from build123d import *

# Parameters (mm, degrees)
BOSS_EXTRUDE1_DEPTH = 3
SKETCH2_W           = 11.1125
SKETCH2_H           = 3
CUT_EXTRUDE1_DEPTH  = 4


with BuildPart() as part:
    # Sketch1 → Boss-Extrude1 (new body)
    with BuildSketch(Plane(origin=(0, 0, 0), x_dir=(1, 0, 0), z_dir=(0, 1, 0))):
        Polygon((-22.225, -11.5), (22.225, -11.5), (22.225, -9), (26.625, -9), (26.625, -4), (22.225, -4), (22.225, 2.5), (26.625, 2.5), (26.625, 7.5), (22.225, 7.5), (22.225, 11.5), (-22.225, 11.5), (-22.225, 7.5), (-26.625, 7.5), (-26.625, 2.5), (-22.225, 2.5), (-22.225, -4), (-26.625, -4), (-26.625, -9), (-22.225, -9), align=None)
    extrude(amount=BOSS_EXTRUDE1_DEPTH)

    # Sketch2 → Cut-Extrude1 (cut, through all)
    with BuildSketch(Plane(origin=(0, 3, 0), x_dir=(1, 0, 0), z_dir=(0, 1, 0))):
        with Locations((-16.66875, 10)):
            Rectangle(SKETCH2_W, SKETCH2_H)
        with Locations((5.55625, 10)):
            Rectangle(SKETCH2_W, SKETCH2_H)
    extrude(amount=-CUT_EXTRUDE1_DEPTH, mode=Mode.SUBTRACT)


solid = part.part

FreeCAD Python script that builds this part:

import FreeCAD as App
import Part
import Sketcher


def add_polygon(sketch, points):
    """Adds a closed chain of lines whose ends are joined by coincident constraints."""
    first, n = sketch.GeometryCount, len(points)
    for a, b in zip(points, points[1:] + points[:1]):
        sketch.addGeometry(Part.LineSegment(App.Vector(*a, 0), App.Vector(*b, 0)), False)
    for i in range(n):
        sketch.addConstraint(Sketcher.Constraint("Coincident", first + i, 2, first + (i + 1) % n, 1))

doc = App.newDocument("Part")
body = doc.addObject("PartDesign::Body", "Body")

sketch1 = body.newObject("Sketcher::SketchObject", "Sketch")
sketch1.AttachmentSupport = (doc.getObject("XZ_Plane"), [""])
sketch1.MapMode = "FlatFace"
add_polygon(sketch1, [(-22.2, 11.5), (22.2, 11.5), (22.2, 9), (26.6, 9), (26.6, 4), (22.2, 4), (22.2, -2.5), (26.6, -2.5), (26.6, -7.5), (22.2, -7.5), (22.2, -11.5), (-22.2, -11.5), (-22.2, -7.5), (-26.6, -7.5), (-26.6, -2.5), (-22.2, -2.5), (-22.2, 4), (-26.6, 4), (-26.6, 9), (-22.2, 9)])
sketch1.addConstraint([
    Sketcher.Constraint("Horizontal", 0),
    Sketcher.Constraint("Vertical", 1),
    Sketcher.Constraint("Horizontal", 2),
    Sketcher.Constraint("Vertical", 3),
    Sketcher.Constraint("Horizontal", 4),
    Sketcher.Constraint("Vertical", 5),
    Sketcher.Constraint("Horizontal", 6),
    Sketcher.Constraint("Vertical", 7),
    Sketcher.Constraint("Horizontal", 8),
    Sketcher.Constraint("Vertical", 9),
    Sketcher.Constraint("Horizontal", 10),
    Sketcher.Constraint("Vertical", 11),
    Sketcher.Constraint("Horizontal", 12),
    Sketcher.Constraint("Vertical", 13),
    Sketcher.Constraint("Horizontal", 14),
    Sketcher.Constraint("Vertical", 15),
    Sketcher.Constraint("Horizontal", 16),
    Sketcher.Constraint("Vertical", 17),
    Sketcher.Constraint("Horizontal", 18),
    Sketcher.Constraint("Vertical", 19),
    Sketcher.Constraint("Symmetric", 0, 2, 10, 2, -1, 1),
    Sketcher.Constraint("Symmetric", 8, 2, 11, 2, -2),
    Sketcher.Constraint("Symmetric", 6, 2, 13, 2, -2),
    Sketcher.Constraint("Symmetric", 4, 2, 15, 2, -2),
    Sketcher.Constraint("Symmetric", 2, 2, 17, 2, -2),
    Sketcher.Constraint("Vertical", 1, 2, 4, 2),
    Sketcher.Constraint("Vertical", 3, 2, 6, 2),
    Sketcher.Constraint("Vertical", 15, 2, 18, 2),
    Sketcher.Constraint("Equal", 3, 7),
    Sketcher.Constraint("DistanceY", 3, 2, 3, 1, 5.0),
    Sketcher.Constraint("DistanceY", 9, 2, 9, 1, 4.0),
    Sketcher.Constraint("DistanceX", 2, 1, 2, 2, 4.4),
    Sketcher.Constraint("DistanceY", 1, 2, 1, 1, 2.5),
    Sketcher.Constraint("DistanceY", 5, 2, 5, 1, 6.5),
    Sketcher.Constraint("DistanceX", 0, 1, 0, 2, 44.45),
])
pad1 = body.newObject("PartDesign::Pad", "Pad")
pad1.Profile = sketch1
pad1.Length = 3
pad1.Reversed = True

sketch2 = body.newObject("Sketcher::SketchObject", "Sketch001")
sketch2.AttachmentSupport = (doc.getObject("XZ_Plane"), [""])
sketch2.MapMode = "FlatFace"
sketch2.AttachmentOffset = App.Placement(App.Vector(0, 0, -3), App.Rotation())
add_polygon(sketch2, [(-22.2, -11.5), (-22.2, -8.5), (-11.1, -8.5), (-11.1, -11.5)])
add_polygon(sketch2, [(0, -11.5), (0, -8.5), (11.1, -8.5), (11.1, -11.5)])
sketch2.addConstraint([
    Sketcher.Constraint("Vertical", 0),
    Sketcher.Constraint("Horizontal", 1),
    Sketcher.Constraint("Vertical", 2),
    Sketcher.Constraint("Horizontal", 3),
    Sketcher.Constraint("Vertical", 4),
    Sketcher.Constraint("Horizontal", 5),
    Sketcher.Constraint("Vertical", 6),
    Sketcher.Constraint("Horizontal", 7),
    Sketcher.Constraint("Symmetric", 1, 2, 5, 2, -2),
    Sketcher.Constraint("PointOnObject", 4, 2, -2),
    Sketcher.Constraint("Horizontal", 3, 2, 6, 2),
    Sketcher.Constraint("Equal", 3, 5),
    Sketcher.Constraint("DistanceY", 0, 1, 0, 2, 3.0),
    Sketcher.Constraint("DistanceY", 0, 2, -1, 1, 8.5),
    Sketcher.Constraint("DistanceX", 1, 1, 1, 2, 11.1125),
])
pocket1 = body.newObject("PartDesign::Pocket", "Pocket")
pocket1.Profile = sketch2
pocket1.Type = "ThroughAll"
pocket1.Reversed = True

doc.recompute()
